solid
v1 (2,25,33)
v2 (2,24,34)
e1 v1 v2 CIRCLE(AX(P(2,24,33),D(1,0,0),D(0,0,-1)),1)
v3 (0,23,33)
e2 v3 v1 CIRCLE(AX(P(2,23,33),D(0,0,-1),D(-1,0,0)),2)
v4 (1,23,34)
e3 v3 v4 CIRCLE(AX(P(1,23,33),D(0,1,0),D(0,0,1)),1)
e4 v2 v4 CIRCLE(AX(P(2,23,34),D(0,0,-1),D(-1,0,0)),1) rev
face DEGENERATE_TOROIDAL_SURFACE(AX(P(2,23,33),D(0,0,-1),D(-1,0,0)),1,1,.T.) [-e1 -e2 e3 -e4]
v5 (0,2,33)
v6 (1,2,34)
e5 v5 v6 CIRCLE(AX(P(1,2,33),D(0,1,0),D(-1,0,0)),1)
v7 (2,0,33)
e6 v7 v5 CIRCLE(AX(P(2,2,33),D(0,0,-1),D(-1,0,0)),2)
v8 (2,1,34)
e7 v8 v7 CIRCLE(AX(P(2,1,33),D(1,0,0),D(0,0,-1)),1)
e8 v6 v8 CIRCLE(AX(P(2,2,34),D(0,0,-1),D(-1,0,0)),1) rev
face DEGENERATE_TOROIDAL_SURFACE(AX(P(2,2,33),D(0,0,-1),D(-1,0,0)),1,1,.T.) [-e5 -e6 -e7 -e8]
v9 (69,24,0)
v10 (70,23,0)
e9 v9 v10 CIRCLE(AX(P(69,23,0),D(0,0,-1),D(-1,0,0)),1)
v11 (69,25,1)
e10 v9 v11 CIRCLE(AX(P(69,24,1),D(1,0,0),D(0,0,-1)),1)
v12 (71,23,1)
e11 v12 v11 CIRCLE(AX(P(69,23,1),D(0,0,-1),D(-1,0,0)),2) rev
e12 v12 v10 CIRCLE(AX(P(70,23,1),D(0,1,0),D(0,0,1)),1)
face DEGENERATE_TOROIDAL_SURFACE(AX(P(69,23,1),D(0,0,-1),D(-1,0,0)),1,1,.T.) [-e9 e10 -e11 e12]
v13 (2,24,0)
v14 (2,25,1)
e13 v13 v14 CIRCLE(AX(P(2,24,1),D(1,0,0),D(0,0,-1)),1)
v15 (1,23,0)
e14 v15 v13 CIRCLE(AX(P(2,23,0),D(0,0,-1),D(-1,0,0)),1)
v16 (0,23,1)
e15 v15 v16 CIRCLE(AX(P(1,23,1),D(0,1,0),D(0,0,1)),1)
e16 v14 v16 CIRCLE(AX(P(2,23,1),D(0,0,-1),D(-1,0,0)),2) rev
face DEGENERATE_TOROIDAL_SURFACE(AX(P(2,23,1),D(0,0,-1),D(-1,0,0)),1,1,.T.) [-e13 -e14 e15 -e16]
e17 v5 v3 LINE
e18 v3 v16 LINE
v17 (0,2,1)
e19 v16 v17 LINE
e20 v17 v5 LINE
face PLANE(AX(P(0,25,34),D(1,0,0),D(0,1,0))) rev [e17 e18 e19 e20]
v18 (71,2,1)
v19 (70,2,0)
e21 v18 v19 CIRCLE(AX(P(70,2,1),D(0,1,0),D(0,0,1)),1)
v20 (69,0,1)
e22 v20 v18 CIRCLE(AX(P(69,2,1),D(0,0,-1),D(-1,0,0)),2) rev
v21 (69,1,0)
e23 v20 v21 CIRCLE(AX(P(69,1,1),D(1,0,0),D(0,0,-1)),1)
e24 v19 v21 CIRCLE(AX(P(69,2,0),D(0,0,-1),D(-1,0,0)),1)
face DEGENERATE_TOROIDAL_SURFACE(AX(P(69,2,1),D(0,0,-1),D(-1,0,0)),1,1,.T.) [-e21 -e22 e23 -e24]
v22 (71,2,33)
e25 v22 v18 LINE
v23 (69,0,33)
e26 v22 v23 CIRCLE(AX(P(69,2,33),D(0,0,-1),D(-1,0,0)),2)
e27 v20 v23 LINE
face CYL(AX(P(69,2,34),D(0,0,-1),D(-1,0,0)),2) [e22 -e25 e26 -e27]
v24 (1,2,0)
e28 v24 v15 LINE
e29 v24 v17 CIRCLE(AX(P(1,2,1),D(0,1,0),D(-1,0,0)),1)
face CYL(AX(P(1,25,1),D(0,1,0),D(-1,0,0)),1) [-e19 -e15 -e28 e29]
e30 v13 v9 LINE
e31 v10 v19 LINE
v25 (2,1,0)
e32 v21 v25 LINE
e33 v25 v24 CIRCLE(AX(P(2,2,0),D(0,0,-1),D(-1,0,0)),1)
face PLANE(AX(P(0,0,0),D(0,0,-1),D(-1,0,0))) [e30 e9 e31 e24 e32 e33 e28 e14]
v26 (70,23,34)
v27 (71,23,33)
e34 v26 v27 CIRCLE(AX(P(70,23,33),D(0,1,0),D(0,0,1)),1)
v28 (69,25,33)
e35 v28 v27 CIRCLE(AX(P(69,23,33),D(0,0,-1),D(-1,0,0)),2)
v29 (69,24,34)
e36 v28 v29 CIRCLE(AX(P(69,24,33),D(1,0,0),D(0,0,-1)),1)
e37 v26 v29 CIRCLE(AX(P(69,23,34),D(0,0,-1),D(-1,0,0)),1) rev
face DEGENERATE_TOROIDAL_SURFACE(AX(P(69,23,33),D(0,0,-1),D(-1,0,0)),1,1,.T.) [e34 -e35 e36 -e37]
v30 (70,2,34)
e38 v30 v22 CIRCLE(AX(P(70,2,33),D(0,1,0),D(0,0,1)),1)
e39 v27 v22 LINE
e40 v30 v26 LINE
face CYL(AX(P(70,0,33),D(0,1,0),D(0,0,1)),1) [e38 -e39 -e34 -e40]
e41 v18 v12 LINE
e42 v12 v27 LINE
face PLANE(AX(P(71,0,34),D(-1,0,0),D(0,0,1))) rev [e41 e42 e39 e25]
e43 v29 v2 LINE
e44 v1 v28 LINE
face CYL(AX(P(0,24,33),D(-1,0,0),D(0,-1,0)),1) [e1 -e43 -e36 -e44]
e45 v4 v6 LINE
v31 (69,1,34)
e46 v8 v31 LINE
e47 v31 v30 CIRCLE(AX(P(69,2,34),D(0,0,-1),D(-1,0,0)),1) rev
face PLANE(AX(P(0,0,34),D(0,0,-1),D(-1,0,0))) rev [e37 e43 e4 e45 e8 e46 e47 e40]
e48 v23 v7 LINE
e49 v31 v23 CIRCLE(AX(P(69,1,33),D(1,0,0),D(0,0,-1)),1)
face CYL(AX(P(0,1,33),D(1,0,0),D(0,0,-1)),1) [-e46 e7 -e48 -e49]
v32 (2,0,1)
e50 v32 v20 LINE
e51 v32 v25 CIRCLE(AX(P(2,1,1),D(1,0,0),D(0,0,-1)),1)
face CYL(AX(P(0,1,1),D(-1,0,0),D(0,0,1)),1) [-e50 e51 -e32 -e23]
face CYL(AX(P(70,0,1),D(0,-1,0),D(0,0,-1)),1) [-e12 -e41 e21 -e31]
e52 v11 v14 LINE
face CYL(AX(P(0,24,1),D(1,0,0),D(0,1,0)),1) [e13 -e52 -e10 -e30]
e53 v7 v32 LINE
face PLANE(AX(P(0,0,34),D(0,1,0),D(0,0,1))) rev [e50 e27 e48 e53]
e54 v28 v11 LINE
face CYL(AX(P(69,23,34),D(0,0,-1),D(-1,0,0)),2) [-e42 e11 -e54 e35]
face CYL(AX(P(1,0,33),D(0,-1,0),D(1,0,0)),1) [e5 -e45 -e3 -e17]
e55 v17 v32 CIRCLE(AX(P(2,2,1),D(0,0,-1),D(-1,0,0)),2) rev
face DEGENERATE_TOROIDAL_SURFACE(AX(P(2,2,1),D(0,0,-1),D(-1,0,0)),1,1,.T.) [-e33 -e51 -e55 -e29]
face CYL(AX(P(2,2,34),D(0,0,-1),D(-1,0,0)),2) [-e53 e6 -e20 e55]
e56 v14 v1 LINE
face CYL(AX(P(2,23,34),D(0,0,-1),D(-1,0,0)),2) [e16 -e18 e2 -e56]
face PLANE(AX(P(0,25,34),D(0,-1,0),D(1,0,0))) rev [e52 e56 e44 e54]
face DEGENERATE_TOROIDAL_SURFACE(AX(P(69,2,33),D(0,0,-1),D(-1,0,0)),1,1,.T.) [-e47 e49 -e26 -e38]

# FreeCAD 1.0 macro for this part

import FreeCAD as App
import Part
import Sketcher

V = App.Vector


def edges_at(feature, points):
    """Names of the edges that pass closest to the given points."""
    edges = feature.Shape.Edges
    near = lambda p: min(range(len(edges)), key=lambda i: edges[i].distToShape(Part.Vertex(*p))[0])
    return sorted({f"Edge{near(p) + 1}" for p in points})

doc = App.newDocument("Part")
body = doc.addObject("PartDesign::Body", "Body")

# Sketch on XY plane
sketch1 = body.newObject("Sketcher::SketchObject", "Sketch")
sketch1.AttachmentSupport = (doc.getObject("XY_Plane"), [""])
sketch1.MapMode = "FlatFace"
sketch1.addGeometry([
    Part.LineSegment(V(0, 25, 0), V(0, 0, 0)),
    Part.LineSegment(V(0, 0, 0), V(71, 0, 0)),
    Part.LineSegment(V(71, 0, 0), V(71, 25, 0)),
    Part.LineSegment(V(71, 25, 0), V(0, 25, 0)),
], False)
sketch1.addConstraint([
    Sketcher.Constraint("Coincident", 0, 2, 1, 1),
    Sketcher.Constraint("Coincident", 1, 2, 2, 1),
    Sketcher.Constraint("Coincident", 2, 2, 3, 1),
    Sketcher.Constraint("Coincident", 3, 2, 0, 1),
    Sketcher.Constraint("Vertical", 0),
    Sketcher.Constraint("Horizontal", 1),
    Sketcher.Constraint("Vertical", 2),
    Sketcher.Constraint("Horizontal", 3),
    Sketcher.Constraint("Coincident", 0, 2, -1, 1),
    Sketcher.Constraint("DistanceX", 1, 1, 1, 2, 71.0),
    Sketcher.Constraint("DistanceY", 0, 2, 0, 1, 25.0),
])
pad1 = body.newObject("PartDesign::Pad", "Pad")
pad1.Profile = sketch1
pad1.Length = 34
doc.recompute()

fillet = body.newObject("PartDesign::Fillet", "Fillet")
fillet.Base = (pad1, edges_at(pad1, [(71, 25, 17)]))
fillet.Radius = 2
doc.recompute()

fillet2 = body.newObject("PartDesign::Fillet", "Fillet001")
fillet2.Base = (fillet, edges_at(fillet, [(71, 0, 17)]))
fillet2.Radius = 2
doc.recompute()

fillet3 = body.newObject("PartDesign::Fillet", "Fillet002")
fillet3.Base = (fillet2, edges_at(fillet2, [(0, 25, 17)]))
fillet3.Radius = 2
doc.recompute()

fillet4 = body.newObject("PartDesign::Fillet", "Fillet003")
fillet4.Base = (fillet3, edges_at(fillet3, [(0, 0, 17)]))
fillet4.Radius = 2
doc.recompute()

fillet5 = body.newObject("PartDesign::Fillet", "Fillet004")
fillet5.Base = (fillet4, edges_at(fillet4, [
    (35.5, 25, 34),
    (70.414, 24.414, 34),
    (71, 12.5, 34),
    (70.414, 0.586, 34),
    (0, 12.5, 34),
    (0.586, 24.414, 34),
    (35.5, 0, 34),
    (0.586, 0.586, 34),
]))
fillet5.Radius = 1
doc.recompute()

fillet6 = body.newObject("PartDesign::Fillet", "Fillet005")
fillet6.Base = (fillet5, edges_at(fillet5, [
    (35.5, 25, 0),
    (70.414, 24.414, 0),
    (71, 12.5, 0),
    (70.414, 0.586, 0),
    (0, 12.5, 0),
    (0.586, 24.414, 0),
    (35.5, 0, 0),
    (0.586, 0.586, 0),
]))
fillet6.Radius = 1

doc.recompute()
